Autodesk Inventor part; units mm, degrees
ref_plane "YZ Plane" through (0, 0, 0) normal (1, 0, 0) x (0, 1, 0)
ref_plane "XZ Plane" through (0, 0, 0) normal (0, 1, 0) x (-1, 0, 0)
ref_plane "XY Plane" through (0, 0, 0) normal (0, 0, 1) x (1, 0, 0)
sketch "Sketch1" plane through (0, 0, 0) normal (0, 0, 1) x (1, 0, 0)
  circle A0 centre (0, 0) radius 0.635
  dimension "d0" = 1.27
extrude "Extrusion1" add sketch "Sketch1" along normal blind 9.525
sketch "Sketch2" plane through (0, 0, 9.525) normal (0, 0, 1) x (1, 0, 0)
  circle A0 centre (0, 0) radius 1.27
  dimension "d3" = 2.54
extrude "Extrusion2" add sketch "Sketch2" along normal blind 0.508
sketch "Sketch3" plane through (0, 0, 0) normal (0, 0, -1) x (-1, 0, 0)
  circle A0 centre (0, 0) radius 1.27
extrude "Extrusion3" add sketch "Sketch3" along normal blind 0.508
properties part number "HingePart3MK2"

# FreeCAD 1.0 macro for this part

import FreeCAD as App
import Part
import Sketcher
from FreeCAD import Vector
Q = App.Units.Quantity

doc = App.newDocument("Part")
body = doc.addObject("PartDesign::Body", "Body")

# Sketch on XY plane
sketch1 = body.newObject("Sketcher::SketchObject", "Sketch")
sketch1.AttachmentSupport = (doc.getObject("XY_Plane"), [""])
sketch1.MapMode = "FlatFace"
sketch1.addGeometry(Part.Circle(Vector(0, 0, 0), Vector(0, 0, 1), 0.6), False)
sketch1.addConstraint(Sketcher.Constraint("Coincident", 0, 3, -1, 1))
sketch1.addConstraint(Sketcher.Constraint("Diameter", 0, Q("0.05 in")))
pad1 = body.newObject("PartDesign::Pad", "Pad")
pad1.Profile = sketch1
pad1.Length = Q("0.375 in")

# Sketch on XY plane
sketch2 = body.newObject("Sketcher::SketchObject", "Sketch001")
sketch2.AttachmentSupport = (doc.getObject("XY_Plane"), [""])
sketch2.MapMode = "FlatFace"
sketch2.AttachmentOffset = App.Placement(Vector(0, 0, 0.375 * 25.4), App.Rotation())
sketch2.addGeometry(Part.Circle(Vector(0, 0, 0), Vector(0, 0, 1), 1.3), False)
sketch2.addConstraint(Sketcher.Constraint("Coincident", 0, 3, -1, 1))
sketch2.addConstraint(Sketcher.Constraint("Diameter", 0, Q("0.1 in")))
pad2 = body.newObject("PartDesign::Pad", "Pad001")
pad2.Profile = sketch2
pad2.Length = Q("0.02 in")

# Sketch on XY plane
sketch3 = body.newObject("Sketcher::SketchObject", "Sketch002")
sketch3.AttachmentSupport = (doc.getObject("XY_Plane"), [""])
sketch3.MapMode = "FlatFace"
sketch3.addGeometry(Part.Circle(Vector(0, 0, 0), Vector(0, 0, 1), 1.3), False)
sketch3.addConstraint(Sketcher.Constraint("Coincident", 0, 3, -1, 1))
sketch3.addConstraint(Sketcher.Constraint("Diameter", 0, Q("0.1 in")))
pad3 = body.newObject("PartDesign::Pad", "Pad002")
pad3.Profile = sketch3
pad3.Length = Q("0.02 in")
pad3.Reversed = True

doc.recompute()
